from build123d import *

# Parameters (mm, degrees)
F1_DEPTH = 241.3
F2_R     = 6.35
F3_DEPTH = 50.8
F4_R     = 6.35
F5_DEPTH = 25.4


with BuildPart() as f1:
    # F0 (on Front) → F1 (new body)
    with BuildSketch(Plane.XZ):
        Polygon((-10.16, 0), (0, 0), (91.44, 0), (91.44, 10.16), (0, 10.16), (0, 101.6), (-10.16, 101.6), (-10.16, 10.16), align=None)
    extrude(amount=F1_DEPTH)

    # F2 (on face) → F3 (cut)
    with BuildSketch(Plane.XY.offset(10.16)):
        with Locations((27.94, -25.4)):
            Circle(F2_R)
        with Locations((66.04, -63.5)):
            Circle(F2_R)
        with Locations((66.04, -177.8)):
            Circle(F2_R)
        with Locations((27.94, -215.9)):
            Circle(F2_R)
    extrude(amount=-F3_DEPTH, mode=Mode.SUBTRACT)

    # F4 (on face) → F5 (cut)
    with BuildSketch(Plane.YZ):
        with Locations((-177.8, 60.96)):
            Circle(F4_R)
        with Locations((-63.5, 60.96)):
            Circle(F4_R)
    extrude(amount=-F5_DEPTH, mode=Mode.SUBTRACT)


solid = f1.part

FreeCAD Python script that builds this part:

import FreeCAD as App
import Part
import Sketcher
Q = App.Units.Quantity

doc = App.newDocument("Part")
params = doc.addObject("Spreadsheet::Sheet", "Params")
for row, (alias, value) in enumerate([
    ("sketch1_width", "4 in"),
    ("sketch1_width2", "3.6 in"),
    ("pad1_length", "9.5 in"),
    ("sketch2_diameter", "0.5 in"),
    ("pocket1_length", "2 in"),
    ("sketch3_diameter", "0.5 in"),
    ("pocket2_length", "1 in"),
], start=1):
    params.set(f"A{row}", alias)
    params.set(f"B{row}", "=" + value)
    params.setAlias(f"B{row}", alias)

body = doc.addObject("PartDesign::Body", "Body")

# Sketch on XZ plane
sketch1 = body.newObject("Sketcher::SketchObject", "Sketch")
sketch1.AttachmentSupport = (doc.getObject("XZ_Plane"), [""])
sketch1.MapMode = "FlatFace"
sketch1.addGeometry(Part.LineSegment(App.Vector(-10, 0, 0), App.Vector(91, 0, 0)), False)
sketch1.addGeometry(Part.LineSegment(App.Vector(91, 0, 0), App.Vector(91, 10, 0)), False)
sketch1.addGeometry(Part.LineSegment(App.Vector(91, 10, 0), App.Vector(0, 10, 0)), False)
sketch1.addGeometry(Part.LineSegment(App.Vector(0, 10, 0), App.Vector(0, 102, 0)), False)
sketch1.addGeometry(Part.LineSegment(App.Vector(0, 102, 0), App.Vector(-10, 102, 0)), False)
sketch1.addGeometry(Part.LineSegment(App.Vector(-10, 102, 0), App.Vector(-10, 0, 0)), False)
sketch1.addConstraint(Sketcher.Constraint("Coincident", 0, 2, 1, 1))
sketch1.addConstraint(Sketcher.Constraint("Coincident", 1, 2, 2, 1))
sketch1.addConstraint(Sketcher.Constraint("Coincident", 2, 2, 3, 1))
sketch1.addConstraint(Sketcher.Constraint("Coincident", 3, 2, 4, 1))
sketch1.addConstraint(Sketcher.Constraint("Coincident", 4, 2, 5, 1))
sketch1.addConstraint(Sketcher.Constraint("Coincident", 5, 2, 0, 1))
sketch1.addConstraint(Sketcher.Constraint("Horizontal", 0))
sketch1.addConstraint(Sketcher.Constraint("Vertical", 1))
sketch1.addConstraint(Sketcher.Constraint("Horizontal", 2))
sketch1.addConstraint(Sketcher.Constraint("Vertical", 3))
sketch1.addConstraint(Sketcher.Constraint("Horizontal", 4))
sketch1.addConstraint(Sketcher.Constraint("Vertical", 5))
sketch1.addConstraint(Sketcher.Constraint("PointOnObject", 0, 2, -1))
sketch1.addConstraint(Sketcher.Constraint("PointOnObject", 2, 2, -2))
sketch1.addConstraint(Sketcher.Constraint("Equal", 4, 1))
sketch1.addConstraint(Sketcher.Constraint("Equal", 2, 3))
sketch1.addConstraint(Sketcher.Constraint("DistanceX", 0, 1, 0, 2, Q("4 in")))
sketch1.addConstraint(Sketcher.Constraint("DistanceX", 2, 2, 2, 1, Q("3.6 in")))
sketch1.setExpression("Constraints[16]", "Params.sketch1_width")
sketch1.setExpression("Constraints[17]", "Params.sketch1_width2")
pad1 = body.newObject("PartDesign::Pad", "Pad")
pad1.Profile = sketch1
pad1.setExpression("Length", "Params.pad1_length")

# Sketch on XY plane
sketch2 = body.newObject("Sketcher::SketchObject", "Sketch001")
sketch2.AttachmentSupport = (doc.getObject("XY_Plane"), [""])
sketch2.MapMode = "FlatFace"
sketch2.AttachmentOffset = App.Placement(App.Vector(0, 0, 0.4 * 25.4), App.Rotation())
sketch2.addGeometry(Part.Circle(App.Vector(28, -25, 0), App.Vector(0, 0, 1), 6), False)
sketch2.addGeometry(Part.Circle(App.Vector(66, -64, 0), App.Vector(0, 0, 1), 6), False)
sketch2.addGeometry(Part.Circle(App.Vector(66, -178, 0), App.Vector(0, 0, 1), 6), False)
sketch2.addGeometry(Part.Circle(App.Vector(28, -216, 0), App.Vector(0, 0, 1), 6), False)
sketch2.addConstraint(Sketcher.Constraint("Equal", 0, 1))
sketch2.addConstraint(Sketcher.Constraint("Equal", 1, 2))
sketch2.addConstraint(Sketcher.Constraint("Equal", 2, 3))
sketch2.addConstraint(Sketcher.Constraint("Vertical", 1, 3, 2, 3))
sketch2.addConstraint(Sketcher.Constraint("Vertical", 0, 3, 3, 3))
sketch2.addConstraint(Sketcher.Constraint("Diameter", 0, Q("0.5 in")))
sketch2.addConstraint(Sketcher.Constraint("DistanceY", 0, 3, -1, 1, Q("1 in")))
sketch2.addConstraint(Sketcher.Constraint("DistanceY", 2, 3, -1, 1, Q("7 in")))
sketch2.addConstraint(Sketcher.Constraint("DistanceY", 3, 3, 1, 3, Q("6 in")))
sketch2.addConstraint(Sketcher.Constraint("DistanceX", -1, 1, 0, 3, Q("1.1 in")))
sketch2.addConstraint(Sketcher.Constraint("DistanceX", -1, 1, 1, 3, Q("2.6 in")))
sketch2.addConstraint(Sketcher.Constraint("DistanceY", 1, 3, -1, 1, Q("2.5 in")))
sketch2.setExpression("Constraints[5]", "Params.sketch2_diameter")
pocket1 = body.newObject("PartDesign::Pocket", "Pocket")
pocket1.Profile = sketch2
pocket1.setExpression("Length", "Params.pocket1_length")

# Sketch on YZ plane
sketch3 = body.newObject("Sketcher::SketchObject", "Sketch002")
sketch3.AttachmentSupport = (doc.getObject("YZ_Plane"), [""])
sketch3.MapMode = "FlatFace"
sketch3.addGeometry(Part.Circle(App.Vector(-178, 61, 0), App.Vector(0, 0, 1), 6), False)
sketch3.addGeometry(Part.Circle(App.Vector(-64, 61, 0), App.Vector(0, 0, 1), 6), False)
sketch3.addConstraint(Sketcher.Constraint("Equal", 0, 1))
sketch3.addConstraint(Sketcher.Constraint("Horizontal", 0, 3, 1, 3))
sketch3.addConstraint(Sketcher.Constraint("Diameter", 0, Q("0.5 in")))
sketch3.addConstraint(Sketcher.Constraint("DistanceX", 0, 3, -1, 1, Q("7 in")))
sketch3.addConstraint(Sketcher.Constraint("DistanceY", -1, 1, 0, 3, Q("2.4 in")))
sketch3.addConstraint(Sketcher.Constraint("DistanceX", 1, 3, -1, 1, Q("2.5 in")))
sketch3.setExpression("Constraints[2]", "Params.sketch3_diameter")
pocket2 = body.newObject("PartDesign::Pocket", "Pocket001")
pocket2.Profile = sketch3
pocket2.setExpression("Length", "Params.pocket2_length")

doc.recompute()
